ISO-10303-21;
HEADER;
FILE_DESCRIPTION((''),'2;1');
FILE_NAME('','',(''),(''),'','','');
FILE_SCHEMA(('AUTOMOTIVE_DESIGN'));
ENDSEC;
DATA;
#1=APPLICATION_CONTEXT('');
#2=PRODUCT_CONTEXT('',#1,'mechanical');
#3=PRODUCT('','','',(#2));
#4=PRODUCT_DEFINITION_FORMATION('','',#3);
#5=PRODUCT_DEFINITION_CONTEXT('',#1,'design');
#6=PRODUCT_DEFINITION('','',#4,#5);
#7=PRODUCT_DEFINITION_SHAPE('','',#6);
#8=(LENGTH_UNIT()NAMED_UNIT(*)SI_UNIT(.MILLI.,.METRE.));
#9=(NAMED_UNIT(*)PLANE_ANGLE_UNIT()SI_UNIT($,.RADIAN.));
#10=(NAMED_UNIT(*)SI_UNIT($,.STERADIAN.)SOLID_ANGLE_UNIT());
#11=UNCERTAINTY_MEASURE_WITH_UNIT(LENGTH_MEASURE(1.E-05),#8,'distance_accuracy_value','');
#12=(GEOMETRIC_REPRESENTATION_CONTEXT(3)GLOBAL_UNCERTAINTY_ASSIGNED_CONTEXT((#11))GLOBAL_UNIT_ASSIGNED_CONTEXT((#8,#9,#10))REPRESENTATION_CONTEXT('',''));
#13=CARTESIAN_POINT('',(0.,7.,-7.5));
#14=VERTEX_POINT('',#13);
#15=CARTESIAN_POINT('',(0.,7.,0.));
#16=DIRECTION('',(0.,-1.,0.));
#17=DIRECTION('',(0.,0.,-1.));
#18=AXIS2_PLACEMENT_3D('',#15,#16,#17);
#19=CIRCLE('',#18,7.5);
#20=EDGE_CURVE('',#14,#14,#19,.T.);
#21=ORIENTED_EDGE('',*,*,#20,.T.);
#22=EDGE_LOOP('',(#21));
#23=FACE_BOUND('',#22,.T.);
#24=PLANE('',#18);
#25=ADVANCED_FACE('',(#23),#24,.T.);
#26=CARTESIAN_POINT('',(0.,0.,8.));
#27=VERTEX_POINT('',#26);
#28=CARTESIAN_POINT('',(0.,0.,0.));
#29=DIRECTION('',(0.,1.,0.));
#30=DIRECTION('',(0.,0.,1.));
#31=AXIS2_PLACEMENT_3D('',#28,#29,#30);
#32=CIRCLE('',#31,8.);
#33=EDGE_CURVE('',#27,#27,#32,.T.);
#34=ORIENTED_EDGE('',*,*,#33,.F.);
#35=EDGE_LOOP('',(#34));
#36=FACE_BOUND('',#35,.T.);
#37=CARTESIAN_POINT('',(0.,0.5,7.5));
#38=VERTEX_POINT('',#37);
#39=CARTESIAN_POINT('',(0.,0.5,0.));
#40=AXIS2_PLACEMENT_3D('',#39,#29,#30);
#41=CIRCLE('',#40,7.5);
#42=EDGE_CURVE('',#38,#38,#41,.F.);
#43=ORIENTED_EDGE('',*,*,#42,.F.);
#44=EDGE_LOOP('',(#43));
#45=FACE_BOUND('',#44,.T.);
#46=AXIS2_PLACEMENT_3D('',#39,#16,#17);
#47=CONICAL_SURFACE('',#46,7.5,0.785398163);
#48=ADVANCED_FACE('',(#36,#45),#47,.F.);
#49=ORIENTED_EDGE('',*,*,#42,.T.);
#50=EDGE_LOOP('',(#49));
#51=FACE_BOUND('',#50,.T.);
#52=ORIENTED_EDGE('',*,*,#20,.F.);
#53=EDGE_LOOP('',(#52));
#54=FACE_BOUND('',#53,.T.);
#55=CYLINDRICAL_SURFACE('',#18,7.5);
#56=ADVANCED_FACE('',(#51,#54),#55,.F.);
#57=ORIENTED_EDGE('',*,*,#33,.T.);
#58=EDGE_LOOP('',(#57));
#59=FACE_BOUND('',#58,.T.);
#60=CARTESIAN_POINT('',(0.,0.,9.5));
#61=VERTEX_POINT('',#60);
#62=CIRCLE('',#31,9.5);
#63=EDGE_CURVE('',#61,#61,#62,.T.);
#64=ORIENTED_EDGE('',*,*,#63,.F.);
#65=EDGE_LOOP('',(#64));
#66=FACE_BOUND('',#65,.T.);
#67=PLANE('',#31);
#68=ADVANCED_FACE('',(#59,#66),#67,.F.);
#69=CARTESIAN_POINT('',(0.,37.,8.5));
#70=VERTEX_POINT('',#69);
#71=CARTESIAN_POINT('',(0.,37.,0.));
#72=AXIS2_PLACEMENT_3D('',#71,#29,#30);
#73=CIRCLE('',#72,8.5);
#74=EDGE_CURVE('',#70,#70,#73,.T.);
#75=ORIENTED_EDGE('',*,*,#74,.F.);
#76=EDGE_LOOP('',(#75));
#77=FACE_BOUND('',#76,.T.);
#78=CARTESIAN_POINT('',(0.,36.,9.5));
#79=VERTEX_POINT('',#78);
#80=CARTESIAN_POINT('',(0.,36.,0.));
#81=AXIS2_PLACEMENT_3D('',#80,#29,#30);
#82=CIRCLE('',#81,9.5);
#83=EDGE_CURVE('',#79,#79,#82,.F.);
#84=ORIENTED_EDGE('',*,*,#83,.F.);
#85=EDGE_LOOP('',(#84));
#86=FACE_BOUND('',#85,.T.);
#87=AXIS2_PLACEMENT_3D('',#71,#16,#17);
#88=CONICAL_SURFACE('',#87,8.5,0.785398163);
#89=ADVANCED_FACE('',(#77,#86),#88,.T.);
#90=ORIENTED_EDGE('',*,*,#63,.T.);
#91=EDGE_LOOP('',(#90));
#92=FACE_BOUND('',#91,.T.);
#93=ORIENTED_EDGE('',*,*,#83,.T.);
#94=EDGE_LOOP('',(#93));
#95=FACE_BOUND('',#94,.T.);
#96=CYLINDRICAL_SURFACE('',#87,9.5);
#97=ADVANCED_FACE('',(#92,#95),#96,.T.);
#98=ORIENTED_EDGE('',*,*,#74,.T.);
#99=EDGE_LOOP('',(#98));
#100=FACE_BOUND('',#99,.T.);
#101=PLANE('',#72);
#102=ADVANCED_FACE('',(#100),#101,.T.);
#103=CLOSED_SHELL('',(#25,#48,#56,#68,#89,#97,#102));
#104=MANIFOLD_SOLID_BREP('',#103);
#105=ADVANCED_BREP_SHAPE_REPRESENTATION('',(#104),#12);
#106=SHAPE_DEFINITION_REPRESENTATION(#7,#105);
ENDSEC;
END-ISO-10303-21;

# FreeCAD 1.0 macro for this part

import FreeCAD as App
import Part
import Sketcher
from FreeCAD import Vector


def edges_at(feature, points):
    """Names of the edges that pass closest to the given points."""
    edges = feature.Shape.Edges
    near = lambda p: min(range(len(edges)), key=lambda i: edges[i].distToShape(Part.Vertex(*p))[0])
    return sorted({f"Edge{near(p) + 1}" for p in points})

doc = App.newDocument("Part")
params = doc.addObject("Spreadsheet::Sheet", "Params")
for row, (alias, value) in enumerate([
    ("sketch1_diameter", "19 mm"),
    ("pad1_length", "37 mm"),
    ("sketch2_diameter", "15 mm"),
    ("pocket1_length", "7 mm"),
    ("chamfer_size", "1 mm"),
    ("chamfer2_size", "0.5 mm"),
], start=1):
    params.set(f"A{row}", alias)
    params.set(f"B{row}", "=" + value)
    params.setAlias(f"B{row}", alias)

body = doc.addObject("PartDesign::Body", "Body")

sketch1 = body.newObject("Sketcher::SketchObject", "Sketch")
sketch1.AttachmentSupport = (doc.getObject("XZ_Plane"), [""])
sketch1.MapMode = "FlatFace"
sketch1.addGeometry(Part.Circle(Vector(0, 0, 0), Vector(0, 0, 1), 10), False)
sketch1.addConstraint(Sketcher.Constraint("Coincident", 0, 3, -1, 1))
sketch1.addConstraint(Sketcher.Constraint("Diameter", 0, 19.0))
sketch1.setExpression("Constraints[1]", "Params.sketch1_diameter")
pad1 = body.newObject("PartDesign::Pad", "Pad")
pad1.Profile = sketch1
pad1.setExpression("Length", "Params.pad1_length")
pad1.Reversed = True

sketch2 = body.newObject("Sketcher::SketchObject", "Sketch001")
sketch2.AttachmentSupport = (doc.getObject("XZ_Plane"), [""])
sketch2.MapMode = "FlatFace"
sketch2.addGeometry(Part.Circle(Vector(0, 0, 0), Vector(0, 0, 1), 8), False)
sketch2.addConstraint(Sketcher.Constraint("Coincident", 0, 3, -1, 1))
sketch2.addConstraint(Sketcher.Constraint("Diameter", 0, 15.0))
sketch2.setExpression("Constraints[1]", "Params.sketch2_diameter")
pocket1 = body.newObject("PartDesign::Pocket", "Pocket")
pocket1.Profile = sketch2
pocket1.setExpression("Length", "Params.pocket1_length")
doc.recompute()

chamfer = body.newObject("PartDesign::Chamfer", "Chamfer")
chamfer.Base = (pocket1, edges_at(pocket1, [(0, 37, -9.5)]))
chamfer.setExpression("Size", "Params.chamfer_size")
doc.recompute()

chamfer2 = body.newObject("PartDesign::Chamfer", "Chamfer001")
chamfer2.Base = (chamfer, edges_at(chamfer, [(0, 0, 7.5)]))
chamfer2.setExpression("Size", "Params.chamfer2_size")

doc.recompute()
